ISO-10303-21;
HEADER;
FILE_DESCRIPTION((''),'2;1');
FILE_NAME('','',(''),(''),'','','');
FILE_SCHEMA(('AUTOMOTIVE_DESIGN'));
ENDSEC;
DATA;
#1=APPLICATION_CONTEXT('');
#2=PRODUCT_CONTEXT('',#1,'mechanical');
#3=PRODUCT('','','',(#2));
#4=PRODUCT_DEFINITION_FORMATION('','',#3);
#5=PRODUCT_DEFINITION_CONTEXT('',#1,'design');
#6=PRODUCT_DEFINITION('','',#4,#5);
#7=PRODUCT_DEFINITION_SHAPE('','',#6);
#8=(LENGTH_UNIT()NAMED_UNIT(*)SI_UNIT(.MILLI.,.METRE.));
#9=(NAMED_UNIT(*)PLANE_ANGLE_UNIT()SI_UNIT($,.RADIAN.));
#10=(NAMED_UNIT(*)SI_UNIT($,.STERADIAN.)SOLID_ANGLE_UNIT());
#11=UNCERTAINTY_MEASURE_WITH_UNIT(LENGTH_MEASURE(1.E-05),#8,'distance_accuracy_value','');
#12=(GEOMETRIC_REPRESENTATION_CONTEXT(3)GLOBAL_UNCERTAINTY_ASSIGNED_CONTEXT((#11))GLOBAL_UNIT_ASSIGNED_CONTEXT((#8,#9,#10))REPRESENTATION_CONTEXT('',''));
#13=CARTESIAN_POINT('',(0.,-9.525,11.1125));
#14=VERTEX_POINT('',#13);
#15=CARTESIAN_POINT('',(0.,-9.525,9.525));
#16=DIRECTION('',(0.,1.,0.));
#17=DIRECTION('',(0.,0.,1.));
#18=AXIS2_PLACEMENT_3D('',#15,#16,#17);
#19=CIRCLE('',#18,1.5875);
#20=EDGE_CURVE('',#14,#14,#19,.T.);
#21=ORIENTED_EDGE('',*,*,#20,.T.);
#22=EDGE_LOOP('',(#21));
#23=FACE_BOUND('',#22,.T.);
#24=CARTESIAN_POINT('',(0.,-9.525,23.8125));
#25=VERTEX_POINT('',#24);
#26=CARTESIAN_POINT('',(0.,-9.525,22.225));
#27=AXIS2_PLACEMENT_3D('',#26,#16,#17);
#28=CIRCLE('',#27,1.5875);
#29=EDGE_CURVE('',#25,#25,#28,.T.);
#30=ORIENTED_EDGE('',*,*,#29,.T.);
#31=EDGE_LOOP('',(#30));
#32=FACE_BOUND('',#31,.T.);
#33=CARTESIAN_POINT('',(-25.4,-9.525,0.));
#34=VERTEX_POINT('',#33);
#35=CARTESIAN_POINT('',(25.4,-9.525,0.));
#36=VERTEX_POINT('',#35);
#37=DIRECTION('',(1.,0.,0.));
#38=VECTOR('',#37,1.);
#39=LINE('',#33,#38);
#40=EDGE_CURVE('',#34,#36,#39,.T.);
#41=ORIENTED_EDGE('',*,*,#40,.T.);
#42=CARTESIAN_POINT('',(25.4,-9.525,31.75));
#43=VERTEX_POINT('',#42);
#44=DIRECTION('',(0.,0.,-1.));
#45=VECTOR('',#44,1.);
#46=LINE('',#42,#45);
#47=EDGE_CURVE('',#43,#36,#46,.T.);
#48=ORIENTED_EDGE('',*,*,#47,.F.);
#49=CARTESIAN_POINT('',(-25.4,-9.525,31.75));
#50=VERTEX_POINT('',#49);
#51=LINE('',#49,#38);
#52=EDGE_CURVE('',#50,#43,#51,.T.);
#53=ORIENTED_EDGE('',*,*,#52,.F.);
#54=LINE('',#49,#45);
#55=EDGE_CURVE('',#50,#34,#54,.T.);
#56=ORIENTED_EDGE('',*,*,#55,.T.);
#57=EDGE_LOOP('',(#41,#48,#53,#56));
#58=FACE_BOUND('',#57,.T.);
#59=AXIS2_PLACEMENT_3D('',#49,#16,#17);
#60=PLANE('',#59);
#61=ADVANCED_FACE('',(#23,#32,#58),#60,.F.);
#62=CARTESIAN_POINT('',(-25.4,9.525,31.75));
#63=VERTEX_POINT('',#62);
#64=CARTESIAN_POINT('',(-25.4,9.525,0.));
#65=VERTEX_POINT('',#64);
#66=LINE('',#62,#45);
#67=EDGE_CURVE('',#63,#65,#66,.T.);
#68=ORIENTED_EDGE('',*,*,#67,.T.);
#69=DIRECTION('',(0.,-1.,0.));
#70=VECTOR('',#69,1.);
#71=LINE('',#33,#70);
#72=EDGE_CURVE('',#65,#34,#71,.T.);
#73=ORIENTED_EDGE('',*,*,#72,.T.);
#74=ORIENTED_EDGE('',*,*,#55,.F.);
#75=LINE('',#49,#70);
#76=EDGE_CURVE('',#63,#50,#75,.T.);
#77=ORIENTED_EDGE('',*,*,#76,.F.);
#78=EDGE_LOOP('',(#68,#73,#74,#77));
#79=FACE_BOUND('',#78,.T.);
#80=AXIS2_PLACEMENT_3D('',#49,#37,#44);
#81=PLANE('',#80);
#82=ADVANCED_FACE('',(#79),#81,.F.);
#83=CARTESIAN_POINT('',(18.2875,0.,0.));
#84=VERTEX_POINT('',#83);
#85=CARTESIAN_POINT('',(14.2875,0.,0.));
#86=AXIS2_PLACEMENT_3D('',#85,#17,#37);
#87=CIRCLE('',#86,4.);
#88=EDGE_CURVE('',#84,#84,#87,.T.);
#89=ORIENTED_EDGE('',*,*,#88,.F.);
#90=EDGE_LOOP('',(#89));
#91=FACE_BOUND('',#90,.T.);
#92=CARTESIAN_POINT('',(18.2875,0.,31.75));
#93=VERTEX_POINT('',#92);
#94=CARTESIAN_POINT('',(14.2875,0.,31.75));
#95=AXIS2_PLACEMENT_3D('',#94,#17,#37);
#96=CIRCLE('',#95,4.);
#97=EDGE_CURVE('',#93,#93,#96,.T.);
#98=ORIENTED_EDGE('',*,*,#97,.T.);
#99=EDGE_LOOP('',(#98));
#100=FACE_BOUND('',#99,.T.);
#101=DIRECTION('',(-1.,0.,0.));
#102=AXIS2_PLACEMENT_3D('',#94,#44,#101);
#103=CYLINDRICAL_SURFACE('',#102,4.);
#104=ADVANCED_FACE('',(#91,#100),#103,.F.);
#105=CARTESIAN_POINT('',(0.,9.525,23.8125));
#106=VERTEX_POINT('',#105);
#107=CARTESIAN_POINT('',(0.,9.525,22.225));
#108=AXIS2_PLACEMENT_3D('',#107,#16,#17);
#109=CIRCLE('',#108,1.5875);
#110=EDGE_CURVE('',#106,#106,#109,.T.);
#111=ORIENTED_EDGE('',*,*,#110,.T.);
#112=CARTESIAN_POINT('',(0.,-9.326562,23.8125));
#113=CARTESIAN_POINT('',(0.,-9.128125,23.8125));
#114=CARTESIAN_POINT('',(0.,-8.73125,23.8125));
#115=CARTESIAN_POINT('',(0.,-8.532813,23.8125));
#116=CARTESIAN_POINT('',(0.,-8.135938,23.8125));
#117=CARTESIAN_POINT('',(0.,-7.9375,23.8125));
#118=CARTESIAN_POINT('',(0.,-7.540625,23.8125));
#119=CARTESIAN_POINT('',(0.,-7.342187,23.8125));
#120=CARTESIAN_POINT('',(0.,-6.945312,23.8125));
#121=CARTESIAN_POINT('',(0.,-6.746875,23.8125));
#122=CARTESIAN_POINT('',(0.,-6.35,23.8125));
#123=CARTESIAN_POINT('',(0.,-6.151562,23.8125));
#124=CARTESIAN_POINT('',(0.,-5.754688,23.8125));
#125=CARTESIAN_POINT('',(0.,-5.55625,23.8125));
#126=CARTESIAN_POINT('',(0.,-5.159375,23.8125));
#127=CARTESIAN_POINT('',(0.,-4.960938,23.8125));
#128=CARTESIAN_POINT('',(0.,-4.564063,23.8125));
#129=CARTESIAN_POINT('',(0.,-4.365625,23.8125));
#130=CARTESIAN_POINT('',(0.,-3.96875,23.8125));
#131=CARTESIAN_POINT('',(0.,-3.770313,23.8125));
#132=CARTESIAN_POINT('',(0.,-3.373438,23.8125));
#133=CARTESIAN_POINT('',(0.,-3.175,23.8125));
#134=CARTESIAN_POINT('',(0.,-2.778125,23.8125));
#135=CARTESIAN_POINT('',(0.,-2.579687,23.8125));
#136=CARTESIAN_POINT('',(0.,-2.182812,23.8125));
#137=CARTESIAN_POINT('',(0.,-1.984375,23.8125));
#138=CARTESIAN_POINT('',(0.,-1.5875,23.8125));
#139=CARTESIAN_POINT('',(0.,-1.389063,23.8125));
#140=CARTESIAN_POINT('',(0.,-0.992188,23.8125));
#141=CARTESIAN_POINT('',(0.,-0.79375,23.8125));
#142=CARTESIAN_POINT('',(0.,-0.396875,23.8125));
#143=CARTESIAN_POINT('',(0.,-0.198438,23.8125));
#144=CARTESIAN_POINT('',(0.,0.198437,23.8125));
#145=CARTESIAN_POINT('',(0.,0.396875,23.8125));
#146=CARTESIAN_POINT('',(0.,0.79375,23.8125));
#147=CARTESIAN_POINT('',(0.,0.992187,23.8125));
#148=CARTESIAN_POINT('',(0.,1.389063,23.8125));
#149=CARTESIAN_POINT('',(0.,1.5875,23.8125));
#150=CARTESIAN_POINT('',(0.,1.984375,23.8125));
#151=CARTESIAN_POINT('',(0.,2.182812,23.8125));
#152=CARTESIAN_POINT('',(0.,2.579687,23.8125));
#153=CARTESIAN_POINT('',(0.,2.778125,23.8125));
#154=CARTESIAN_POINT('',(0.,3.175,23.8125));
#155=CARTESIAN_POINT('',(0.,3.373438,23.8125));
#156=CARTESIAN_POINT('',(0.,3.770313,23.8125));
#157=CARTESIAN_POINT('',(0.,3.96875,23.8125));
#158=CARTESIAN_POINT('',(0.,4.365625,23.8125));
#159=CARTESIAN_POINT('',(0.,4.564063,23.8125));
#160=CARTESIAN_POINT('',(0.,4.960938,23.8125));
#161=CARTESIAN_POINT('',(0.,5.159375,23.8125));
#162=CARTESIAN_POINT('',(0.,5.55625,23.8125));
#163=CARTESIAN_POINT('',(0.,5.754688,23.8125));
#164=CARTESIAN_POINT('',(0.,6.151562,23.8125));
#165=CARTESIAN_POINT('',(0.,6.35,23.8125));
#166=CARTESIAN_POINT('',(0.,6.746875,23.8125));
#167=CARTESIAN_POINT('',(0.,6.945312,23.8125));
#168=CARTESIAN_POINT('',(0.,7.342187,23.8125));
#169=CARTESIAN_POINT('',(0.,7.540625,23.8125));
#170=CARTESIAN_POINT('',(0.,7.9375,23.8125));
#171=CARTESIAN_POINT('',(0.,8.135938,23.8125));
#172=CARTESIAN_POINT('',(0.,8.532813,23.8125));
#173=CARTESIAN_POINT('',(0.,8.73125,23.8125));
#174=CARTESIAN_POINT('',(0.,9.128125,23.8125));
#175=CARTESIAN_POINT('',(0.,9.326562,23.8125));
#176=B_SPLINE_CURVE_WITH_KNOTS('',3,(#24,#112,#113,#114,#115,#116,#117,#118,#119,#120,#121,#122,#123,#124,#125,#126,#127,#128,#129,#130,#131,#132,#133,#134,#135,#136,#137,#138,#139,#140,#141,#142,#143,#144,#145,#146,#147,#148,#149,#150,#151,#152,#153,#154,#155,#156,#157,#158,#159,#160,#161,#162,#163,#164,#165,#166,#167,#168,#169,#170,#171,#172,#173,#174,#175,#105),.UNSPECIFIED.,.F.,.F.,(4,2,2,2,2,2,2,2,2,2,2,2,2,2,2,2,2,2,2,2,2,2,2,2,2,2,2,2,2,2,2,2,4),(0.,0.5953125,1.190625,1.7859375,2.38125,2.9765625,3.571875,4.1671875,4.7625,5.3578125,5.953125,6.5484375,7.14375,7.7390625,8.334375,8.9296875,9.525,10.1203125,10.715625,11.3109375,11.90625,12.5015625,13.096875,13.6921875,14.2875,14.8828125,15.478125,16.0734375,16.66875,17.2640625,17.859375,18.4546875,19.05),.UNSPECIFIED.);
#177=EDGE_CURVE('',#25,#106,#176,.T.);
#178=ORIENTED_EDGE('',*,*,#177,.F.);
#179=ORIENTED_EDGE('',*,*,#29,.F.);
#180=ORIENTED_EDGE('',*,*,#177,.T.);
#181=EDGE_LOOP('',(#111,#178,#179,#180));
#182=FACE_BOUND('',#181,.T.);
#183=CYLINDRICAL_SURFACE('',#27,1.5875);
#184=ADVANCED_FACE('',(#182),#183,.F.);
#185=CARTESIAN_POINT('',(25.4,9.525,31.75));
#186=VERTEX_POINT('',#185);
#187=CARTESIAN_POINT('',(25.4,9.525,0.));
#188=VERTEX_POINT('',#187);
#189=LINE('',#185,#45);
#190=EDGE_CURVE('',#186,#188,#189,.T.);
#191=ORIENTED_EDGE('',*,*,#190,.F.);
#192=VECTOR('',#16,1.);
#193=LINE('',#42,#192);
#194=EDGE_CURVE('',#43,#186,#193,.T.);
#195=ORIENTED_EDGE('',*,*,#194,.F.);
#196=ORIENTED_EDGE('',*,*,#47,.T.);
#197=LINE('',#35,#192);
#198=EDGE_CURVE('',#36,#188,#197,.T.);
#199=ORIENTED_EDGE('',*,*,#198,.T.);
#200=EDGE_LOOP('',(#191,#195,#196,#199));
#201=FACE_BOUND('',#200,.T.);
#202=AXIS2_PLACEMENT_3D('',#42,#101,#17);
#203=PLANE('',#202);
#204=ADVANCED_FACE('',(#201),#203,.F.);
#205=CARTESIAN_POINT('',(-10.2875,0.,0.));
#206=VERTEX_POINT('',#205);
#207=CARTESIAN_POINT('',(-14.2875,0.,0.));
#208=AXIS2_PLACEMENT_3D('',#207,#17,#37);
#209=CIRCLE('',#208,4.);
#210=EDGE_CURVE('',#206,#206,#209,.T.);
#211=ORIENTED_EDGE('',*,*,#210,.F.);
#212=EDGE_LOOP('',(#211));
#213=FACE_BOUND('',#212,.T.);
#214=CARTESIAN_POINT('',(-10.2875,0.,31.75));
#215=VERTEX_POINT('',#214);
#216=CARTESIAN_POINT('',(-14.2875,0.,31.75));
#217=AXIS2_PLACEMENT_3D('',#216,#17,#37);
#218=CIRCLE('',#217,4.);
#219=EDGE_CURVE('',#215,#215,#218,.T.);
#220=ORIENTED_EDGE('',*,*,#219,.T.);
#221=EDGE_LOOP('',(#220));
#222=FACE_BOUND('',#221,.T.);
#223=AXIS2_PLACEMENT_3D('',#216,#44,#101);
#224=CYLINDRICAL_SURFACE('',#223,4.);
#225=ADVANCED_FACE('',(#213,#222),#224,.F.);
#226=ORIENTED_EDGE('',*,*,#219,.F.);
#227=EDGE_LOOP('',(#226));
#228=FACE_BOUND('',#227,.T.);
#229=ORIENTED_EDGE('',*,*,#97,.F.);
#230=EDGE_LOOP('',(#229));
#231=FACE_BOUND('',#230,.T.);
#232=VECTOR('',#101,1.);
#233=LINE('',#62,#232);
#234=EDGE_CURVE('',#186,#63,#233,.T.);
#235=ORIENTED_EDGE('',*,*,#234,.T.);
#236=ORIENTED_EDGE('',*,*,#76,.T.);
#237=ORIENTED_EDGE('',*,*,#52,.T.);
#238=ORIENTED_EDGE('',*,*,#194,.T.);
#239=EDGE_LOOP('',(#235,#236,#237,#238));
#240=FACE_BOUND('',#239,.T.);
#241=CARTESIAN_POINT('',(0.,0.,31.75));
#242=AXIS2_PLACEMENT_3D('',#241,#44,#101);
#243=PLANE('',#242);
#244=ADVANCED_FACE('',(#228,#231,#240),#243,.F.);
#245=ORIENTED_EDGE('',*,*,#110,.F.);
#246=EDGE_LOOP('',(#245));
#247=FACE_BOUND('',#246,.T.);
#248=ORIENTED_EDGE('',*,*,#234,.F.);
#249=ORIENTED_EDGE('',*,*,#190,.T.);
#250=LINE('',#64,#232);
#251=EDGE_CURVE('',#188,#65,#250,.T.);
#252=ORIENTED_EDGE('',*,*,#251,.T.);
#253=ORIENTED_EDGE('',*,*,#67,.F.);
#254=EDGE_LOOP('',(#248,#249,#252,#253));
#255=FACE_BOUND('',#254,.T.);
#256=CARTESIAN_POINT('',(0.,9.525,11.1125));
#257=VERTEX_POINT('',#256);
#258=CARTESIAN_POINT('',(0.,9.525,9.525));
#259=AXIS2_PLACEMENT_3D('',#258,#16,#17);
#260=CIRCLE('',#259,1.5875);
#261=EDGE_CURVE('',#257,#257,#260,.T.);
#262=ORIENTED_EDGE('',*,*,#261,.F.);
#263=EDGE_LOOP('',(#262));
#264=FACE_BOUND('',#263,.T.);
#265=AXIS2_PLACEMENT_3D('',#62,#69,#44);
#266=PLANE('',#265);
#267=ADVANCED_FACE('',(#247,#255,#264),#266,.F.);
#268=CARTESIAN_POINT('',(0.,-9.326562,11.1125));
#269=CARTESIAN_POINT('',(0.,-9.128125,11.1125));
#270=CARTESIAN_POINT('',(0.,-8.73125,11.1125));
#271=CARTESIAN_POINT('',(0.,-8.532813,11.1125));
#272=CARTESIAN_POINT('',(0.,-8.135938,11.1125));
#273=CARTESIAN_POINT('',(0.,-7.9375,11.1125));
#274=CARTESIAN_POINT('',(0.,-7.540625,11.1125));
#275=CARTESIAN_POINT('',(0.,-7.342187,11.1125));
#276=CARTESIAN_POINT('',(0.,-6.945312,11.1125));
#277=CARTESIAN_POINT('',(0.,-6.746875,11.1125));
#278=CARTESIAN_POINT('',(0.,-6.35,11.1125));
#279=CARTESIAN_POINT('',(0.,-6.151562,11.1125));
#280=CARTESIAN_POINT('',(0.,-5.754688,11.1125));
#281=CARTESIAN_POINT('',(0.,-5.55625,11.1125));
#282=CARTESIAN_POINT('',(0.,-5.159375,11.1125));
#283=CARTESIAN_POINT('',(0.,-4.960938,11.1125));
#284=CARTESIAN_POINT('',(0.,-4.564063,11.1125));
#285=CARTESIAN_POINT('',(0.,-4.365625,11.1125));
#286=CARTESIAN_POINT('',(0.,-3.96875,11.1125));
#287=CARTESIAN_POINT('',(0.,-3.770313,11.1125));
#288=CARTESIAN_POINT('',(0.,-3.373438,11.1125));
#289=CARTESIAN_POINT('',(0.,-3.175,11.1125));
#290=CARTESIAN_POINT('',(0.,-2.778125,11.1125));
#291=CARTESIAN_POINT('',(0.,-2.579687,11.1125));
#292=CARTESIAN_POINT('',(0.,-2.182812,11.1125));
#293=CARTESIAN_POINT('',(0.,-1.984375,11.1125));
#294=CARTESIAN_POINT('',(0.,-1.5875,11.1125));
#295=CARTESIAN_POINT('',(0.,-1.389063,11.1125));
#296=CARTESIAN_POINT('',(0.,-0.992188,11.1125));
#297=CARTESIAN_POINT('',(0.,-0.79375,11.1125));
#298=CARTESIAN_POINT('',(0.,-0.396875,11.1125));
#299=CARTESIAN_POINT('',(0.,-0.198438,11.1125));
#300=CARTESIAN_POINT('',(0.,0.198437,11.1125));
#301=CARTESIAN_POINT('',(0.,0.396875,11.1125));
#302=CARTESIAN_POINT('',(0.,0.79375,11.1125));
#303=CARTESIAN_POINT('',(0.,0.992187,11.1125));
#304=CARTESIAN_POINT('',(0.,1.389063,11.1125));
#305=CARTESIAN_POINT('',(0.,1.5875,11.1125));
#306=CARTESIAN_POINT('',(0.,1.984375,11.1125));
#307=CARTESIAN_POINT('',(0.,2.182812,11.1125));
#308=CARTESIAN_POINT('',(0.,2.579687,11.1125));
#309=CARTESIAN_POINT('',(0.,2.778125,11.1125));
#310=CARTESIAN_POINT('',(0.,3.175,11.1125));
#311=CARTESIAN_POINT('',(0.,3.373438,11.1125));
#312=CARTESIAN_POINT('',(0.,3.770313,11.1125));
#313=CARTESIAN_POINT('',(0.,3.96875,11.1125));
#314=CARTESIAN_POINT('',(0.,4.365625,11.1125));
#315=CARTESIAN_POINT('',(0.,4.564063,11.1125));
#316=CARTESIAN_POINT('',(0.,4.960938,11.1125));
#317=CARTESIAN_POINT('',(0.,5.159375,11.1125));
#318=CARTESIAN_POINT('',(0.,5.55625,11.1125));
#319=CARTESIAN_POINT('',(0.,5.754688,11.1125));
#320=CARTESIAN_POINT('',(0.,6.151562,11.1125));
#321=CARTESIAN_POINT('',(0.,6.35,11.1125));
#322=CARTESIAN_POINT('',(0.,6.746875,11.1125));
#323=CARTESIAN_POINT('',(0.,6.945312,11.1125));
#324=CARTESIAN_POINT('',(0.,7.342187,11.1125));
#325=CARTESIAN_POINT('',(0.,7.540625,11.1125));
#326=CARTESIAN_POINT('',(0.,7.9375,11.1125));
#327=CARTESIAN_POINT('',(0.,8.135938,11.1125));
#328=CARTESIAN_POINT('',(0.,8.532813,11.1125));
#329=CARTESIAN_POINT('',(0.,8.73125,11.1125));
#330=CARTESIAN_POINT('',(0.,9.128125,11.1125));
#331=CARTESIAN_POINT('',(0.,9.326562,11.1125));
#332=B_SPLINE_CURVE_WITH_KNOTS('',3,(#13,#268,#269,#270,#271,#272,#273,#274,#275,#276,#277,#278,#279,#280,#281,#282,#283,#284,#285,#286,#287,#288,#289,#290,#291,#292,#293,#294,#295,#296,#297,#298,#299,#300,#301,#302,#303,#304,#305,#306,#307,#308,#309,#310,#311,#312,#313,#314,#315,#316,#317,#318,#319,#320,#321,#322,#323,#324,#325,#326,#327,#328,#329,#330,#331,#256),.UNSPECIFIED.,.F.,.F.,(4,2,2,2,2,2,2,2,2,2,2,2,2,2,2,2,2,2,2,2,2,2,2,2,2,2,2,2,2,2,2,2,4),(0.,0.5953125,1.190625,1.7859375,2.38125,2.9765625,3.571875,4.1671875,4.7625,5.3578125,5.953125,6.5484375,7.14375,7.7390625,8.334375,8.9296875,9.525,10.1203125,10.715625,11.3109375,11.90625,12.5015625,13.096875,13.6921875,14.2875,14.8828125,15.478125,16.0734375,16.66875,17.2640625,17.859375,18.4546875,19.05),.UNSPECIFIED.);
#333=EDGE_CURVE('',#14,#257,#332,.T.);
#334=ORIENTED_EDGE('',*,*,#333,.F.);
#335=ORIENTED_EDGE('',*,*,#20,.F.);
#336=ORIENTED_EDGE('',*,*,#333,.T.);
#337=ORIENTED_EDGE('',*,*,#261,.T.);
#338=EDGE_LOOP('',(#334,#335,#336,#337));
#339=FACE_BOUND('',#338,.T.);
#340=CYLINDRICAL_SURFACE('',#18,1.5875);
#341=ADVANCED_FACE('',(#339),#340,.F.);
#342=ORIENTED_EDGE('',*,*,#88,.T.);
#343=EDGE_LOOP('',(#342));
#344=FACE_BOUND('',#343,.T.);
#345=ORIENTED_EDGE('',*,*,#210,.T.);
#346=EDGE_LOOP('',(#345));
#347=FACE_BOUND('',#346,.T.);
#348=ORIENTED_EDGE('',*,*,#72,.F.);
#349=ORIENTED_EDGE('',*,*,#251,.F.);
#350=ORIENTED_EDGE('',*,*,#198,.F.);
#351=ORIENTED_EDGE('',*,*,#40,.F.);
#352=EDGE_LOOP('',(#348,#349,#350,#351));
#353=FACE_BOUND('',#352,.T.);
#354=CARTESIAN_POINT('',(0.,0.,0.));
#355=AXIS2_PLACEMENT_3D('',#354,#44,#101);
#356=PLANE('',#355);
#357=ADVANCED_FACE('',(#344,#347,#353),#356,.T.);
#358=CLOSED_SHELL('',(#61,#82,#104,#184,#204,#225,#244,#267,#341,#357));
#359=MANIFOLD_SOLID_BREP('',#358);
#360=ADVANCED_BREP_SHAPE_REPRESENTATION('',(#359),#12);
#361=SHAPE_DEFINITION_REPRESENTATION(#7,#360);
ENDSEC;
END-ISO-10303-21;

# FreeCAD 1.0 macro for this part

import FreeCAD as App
import Part
import Sketcher

V = App.Vector
Q = App.Units.Quantity


def add_polygon(sketch, points):
    """Adds a closed chain of lines whose ends are joined by coincident constraints."""
    first, n = sketch.GeometryCount, len(points)
    for a, b in zip(points, points[1:] + points[:1]):
        sketch.addGeometry(Part.LineSegment(App.Vector(*a, 0), App.Vector(*b, 0)), False)
    for i in range(n):
        sketch.addConstraint(Sketcher.Constraint("Coincident", first + i, 2, first + (i + 1) % n, 1))

doc = App.newDocument("Part")
params = doc.addObject("Spreadsheet::Sheet", "Params")
for row, (alias, value) in enumerate([
    ("sketch1_width", "2 in"),
    ("sketch1_height", "0.75 in"),
    ("pad1_length", "1.25 in"),
    ("sketch2_diameter", "0.125 in"),
], start=1):
    params.set(f"A{row}", alias)
    params.set(f"B{row}", "=" + value)
    params.setAlias(f"B{row}", alias)

body = doc.addObject("PartDesign::Body", "Body")

# Sketch on XY plane
sketch1 = body.newObject("Sketcher::SketchObject", "Sketch")
sketch1.AttachmentSupport = (doc.getObject("XY_Plane"), [""])
sketch1.MapMode = "FlatFace"
add_polygon(sketch1, [(-25.4, 9.5), (-25.4, -9.5), (25.4, -9.5), (25.4, 9.5)])  # lines 0-3
sketch1.addGeometry(Part.Circle(V(-14.3, 0, 0), V(0, 0, 1), 4), False)  # 4
sketch1.addGeometry(Part.Circle(V(14.3, 0, 0), V(0, 0, 1), 4), False)  # 5
sketch1.addConstraint([
    Sketcher.Constraint("Vertical", 0),
    Sketcher.Constraint("Horizontal", 1),
    Sketcher.Constraint("Vertical", 2),
    Sketcher.Constraint("Horizontal", 3),
    Sketcher.Constraint("Equal", 4, 5),
    Sketcher.Constraint("Symmetric", 4, 3, 5, 3, -1, 1),
    Sketcher.Constraint("Symmetric", 0, 2, 2, 2, -1, 1),
    Sketcher.Constraint("PointOnObject", 4, 3, -1),
    Sketcher.Constraint("DistanceX", 1, 1, 1, 2, Q("2 in")),
    Sketcher.Constraint("DistanceY", 0, 2, 0, 1, Q("0.75 in")),
    Sketcher.Constraint("Diameter", 4, Q("8 mm")),
    Sketcher.Constraint("DistanceX", 4, 3, -1, 1, Q("0.5625 in")),
])
sketch1.setExpression("Constraints[12]", "Params.sketch1_width")
sketch1.setExpression("Constraints[13]", "Params.sketch1_height")
pad1 = body.newObject("PartDesign::Pad", "Pad")
pad1.Profile = sketch1
pad1.setExpression("Length", "Params.pad1_length")

# Sketch on XZ plane
sketch2 = body.newObject("Sketcher::SketchObject", "Sketch001")
sketch2.AttachmentSupport = (doc.getObject("XZ_Plane"), [""])
sketch2.MapMode = "FlatFace"
sketch2.AttachmentOffset = App.Placement(V(0, 0, -0.375 * 25.4), App.Rotation())
sketch2.addGeometry([
    Part.Circle(V(0, 9.5, 0), V(0, 0, 1), 1.6),
    Part.Circle(V(0, 22.2, 0), V(0, 0, 1), 1.6),
], False)
sketch2.addConstraint([
    Sketcher.Constraint("Equal", 0, 1),
    Sketcher.Constraint("PointOnObject", 0, 3, -2),
    Sketcher.Constraint("PointOnObject", 1, 3, -2),
    Sketcher.Constraint("Diameter", 0, Q("0.125 in")),
    Sketcher.Constraint("DistanceY", 0, 3, 1, 3, Q("0.5 in")),
    Sketcher.Constraint("DistanceY", -1, 1, 0, 3, Q("0.375 in")),
])
sketch2.setExpression("Constraints[3]", "Params.sketch2_diameter")
pocket1 = body.newObject("PartDesign::Pocket", "Pocket")
pocket1.Profile = sketch2
pocket1.Type = "ThroughAll"
pocket1.Reversed = True

doc.recompute()
